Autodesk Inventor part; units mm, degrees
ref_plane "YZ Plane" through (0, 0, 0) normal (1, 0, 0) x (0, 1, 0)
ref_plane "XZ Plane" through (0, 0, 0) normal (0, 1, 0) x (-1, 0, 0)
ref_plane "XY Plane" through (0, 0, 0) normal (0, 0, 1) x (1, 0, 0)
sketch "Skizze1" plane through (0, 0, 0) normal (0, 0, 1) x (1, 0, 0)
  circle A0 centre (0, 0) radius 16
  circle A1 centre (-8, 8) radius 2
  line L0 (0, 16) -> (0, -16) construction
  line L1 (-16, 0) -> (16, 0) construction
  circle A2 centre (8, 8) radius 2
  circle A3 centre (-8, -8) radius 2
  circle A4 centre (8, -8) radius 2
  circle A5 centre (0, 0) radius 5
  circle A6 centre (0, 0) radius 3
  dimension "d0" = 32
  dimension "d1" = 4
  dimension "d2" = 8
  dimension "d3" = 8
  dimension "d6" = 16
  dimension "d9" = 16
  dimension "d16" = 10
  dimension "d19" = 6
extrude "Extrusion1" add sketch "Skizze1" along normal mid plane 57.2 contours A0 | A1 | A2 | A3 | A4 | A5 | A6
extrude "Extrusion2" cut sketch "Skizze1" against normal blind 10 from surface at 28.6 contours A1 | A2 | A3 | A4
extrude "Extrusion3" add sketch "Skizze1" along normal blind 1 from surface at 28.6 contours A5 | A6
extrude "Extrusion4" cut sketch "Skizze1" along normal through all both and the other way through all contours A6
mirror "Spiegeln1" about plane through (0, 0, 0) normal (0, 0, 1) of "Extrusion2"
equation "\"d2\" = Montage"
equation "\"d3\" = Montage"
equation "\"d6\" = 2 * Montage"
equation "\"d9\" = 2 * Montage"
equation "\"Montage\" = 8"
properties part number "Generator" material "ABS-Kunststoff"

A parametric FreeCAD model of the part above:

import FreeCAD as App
import Part
import Sketcher
from FreeCAD import Vector

doc = App.newDocument("Part")
body = doc.addObject("PartDesign::Body", "Body")

# Sketch on XY plane
sketch1 = body.newObject("Sketcher::SketchObject", "Sketch")
sketch1.AttachmentSupport = (doc.getObject("XY_Plane"), [""])
sketch1.MapMode = "FlatFace"
sketch1.addGeometry(Part.Circle(Vector(0, 0, 0), Vector(0, 0, 1), 16), False)
sketch1.addConstraint([
    Sketcher.Constraint("Coincident", 0, 3, -1, 1),
    Sketcher.Constraint("Diameter", 0, 32.0),
])
pad1 = body.newObject("PartDesign::Pad", "Pad")
pad1.Profile = sketch1
pad1.Length = 57.2
pad1.Midplane = True

# Sketch on XY plane
sketch2 = body.newObject("Sketcher::SketchObject", "Sketch001")
sketch2.AttachmentSupport = (doc.getObject("XY_Plane"), [""])
sketch2.MapMode = "FlatFace"
sketch2.AttachmentOffset = App.Placement(Vector(0, 0, 28.6), App.Rotation())
sketch2.addGeometry([
    Part.Circle(Vector(-8, 8, 0), Vector(0, 0, 1), 2),
    Part.Circle(Vector(8, 8, 0), Vector(0, 0, 1), 2),
    Part.Circle(Vector(-8, -8, 0), Vector(0, 0, 1), 2),
    Part.Circle(Vector(8, -8, 0), Vector(0, 0, 1), 2),
], False)
sketch2.addConstraint([
    Sketcher.Constraint("Equal", 0, 1),
    Sketcher.Constraint("Equal", 1, 2),
    Sketcher.Constraint("Equal", 2, 3),
    Sketcher.Constraint("Symmetric", 1, 3, 2, 3, -1, 1),
    Sketcher.Constraint("Symmetric", 0, 3, 3, 3, -1, 1),
    Sketcher.Constraint("Symmetric", 0, 3, 1, 3, -2),
    Sketcher.Constraint("Diameter", 0, 4.0),
    Sketcher.Constraint("DistanceX", 0, 3, -1, 1, 8.0),
    Sketcher.Constraint("DistanceY", -1, 1, 0, 3, 8.0),
])
pocket1 = body.newObject("PartDesign::Pocket", "Pocket")
pocket1.Profile = sketch2
pocket1.Length = 10

# Sketch on XY plane
sketch3 = body.newObject("Sketcher::SketchObject", "Sketch002")
sketch3.AttachmentSupport = (doc.getObject("XY_Plane"), [""])
sketch3.MapMode = "FlatFace"
sketch3.AttachmentOffset = App.Placement(Vector(0, 0, 28.6), App.Rotation())
sketch3.addGeometry(Part.Circle(Vector(0, 0, 0), Vector(0, 0, 1), 5), False)
sketch3.addConstraint([
    Sketcher.Constraint("Coincident", 0, 3, -1, 1),
    Sketcher.Constraint("Diameter", 0, 10.0),
])
pad2 = body.newObject("PartDesign::Pad", "Pad001")
pad2.Profile = sketch3
pad2.Length = 1

# Sketch on XY plane
sketch4 = body.newObject("Sketcher::SketchObject", "Sketch003")
sketch4.AttachmentSupport = (doc.getObject("XY_Plane"), [""])
sketch4.MapMode = "FlatFace"
sketch4.addGeometry(Part.Circle(Vector(0, 0, 0), Vector(0, 0, 1), 3), False)
sketch4.addConstraint([
    Sketcher.Constraint("Coincident", 0, 3, -1, 1),
    Sketcher.Constraint("Diameter", 0, 6.0),
])
pocket2 = body.newObject("PartDesign::Pocket", "Pocket001")
pocket2.Profile = sketch4
pocket2.Type = "ThroughAll"
pocket2.Midplane = True
doc.recompute()

mirrored = body.newObject("PartDesign::Mirrored", "Mirrored")
mirrored.Originals = [pocket1]
mirrored.MirrorPlane = (doc.getObject("XY_Plane"), [""])
body.Tip = mirrored

doc.recompute()
